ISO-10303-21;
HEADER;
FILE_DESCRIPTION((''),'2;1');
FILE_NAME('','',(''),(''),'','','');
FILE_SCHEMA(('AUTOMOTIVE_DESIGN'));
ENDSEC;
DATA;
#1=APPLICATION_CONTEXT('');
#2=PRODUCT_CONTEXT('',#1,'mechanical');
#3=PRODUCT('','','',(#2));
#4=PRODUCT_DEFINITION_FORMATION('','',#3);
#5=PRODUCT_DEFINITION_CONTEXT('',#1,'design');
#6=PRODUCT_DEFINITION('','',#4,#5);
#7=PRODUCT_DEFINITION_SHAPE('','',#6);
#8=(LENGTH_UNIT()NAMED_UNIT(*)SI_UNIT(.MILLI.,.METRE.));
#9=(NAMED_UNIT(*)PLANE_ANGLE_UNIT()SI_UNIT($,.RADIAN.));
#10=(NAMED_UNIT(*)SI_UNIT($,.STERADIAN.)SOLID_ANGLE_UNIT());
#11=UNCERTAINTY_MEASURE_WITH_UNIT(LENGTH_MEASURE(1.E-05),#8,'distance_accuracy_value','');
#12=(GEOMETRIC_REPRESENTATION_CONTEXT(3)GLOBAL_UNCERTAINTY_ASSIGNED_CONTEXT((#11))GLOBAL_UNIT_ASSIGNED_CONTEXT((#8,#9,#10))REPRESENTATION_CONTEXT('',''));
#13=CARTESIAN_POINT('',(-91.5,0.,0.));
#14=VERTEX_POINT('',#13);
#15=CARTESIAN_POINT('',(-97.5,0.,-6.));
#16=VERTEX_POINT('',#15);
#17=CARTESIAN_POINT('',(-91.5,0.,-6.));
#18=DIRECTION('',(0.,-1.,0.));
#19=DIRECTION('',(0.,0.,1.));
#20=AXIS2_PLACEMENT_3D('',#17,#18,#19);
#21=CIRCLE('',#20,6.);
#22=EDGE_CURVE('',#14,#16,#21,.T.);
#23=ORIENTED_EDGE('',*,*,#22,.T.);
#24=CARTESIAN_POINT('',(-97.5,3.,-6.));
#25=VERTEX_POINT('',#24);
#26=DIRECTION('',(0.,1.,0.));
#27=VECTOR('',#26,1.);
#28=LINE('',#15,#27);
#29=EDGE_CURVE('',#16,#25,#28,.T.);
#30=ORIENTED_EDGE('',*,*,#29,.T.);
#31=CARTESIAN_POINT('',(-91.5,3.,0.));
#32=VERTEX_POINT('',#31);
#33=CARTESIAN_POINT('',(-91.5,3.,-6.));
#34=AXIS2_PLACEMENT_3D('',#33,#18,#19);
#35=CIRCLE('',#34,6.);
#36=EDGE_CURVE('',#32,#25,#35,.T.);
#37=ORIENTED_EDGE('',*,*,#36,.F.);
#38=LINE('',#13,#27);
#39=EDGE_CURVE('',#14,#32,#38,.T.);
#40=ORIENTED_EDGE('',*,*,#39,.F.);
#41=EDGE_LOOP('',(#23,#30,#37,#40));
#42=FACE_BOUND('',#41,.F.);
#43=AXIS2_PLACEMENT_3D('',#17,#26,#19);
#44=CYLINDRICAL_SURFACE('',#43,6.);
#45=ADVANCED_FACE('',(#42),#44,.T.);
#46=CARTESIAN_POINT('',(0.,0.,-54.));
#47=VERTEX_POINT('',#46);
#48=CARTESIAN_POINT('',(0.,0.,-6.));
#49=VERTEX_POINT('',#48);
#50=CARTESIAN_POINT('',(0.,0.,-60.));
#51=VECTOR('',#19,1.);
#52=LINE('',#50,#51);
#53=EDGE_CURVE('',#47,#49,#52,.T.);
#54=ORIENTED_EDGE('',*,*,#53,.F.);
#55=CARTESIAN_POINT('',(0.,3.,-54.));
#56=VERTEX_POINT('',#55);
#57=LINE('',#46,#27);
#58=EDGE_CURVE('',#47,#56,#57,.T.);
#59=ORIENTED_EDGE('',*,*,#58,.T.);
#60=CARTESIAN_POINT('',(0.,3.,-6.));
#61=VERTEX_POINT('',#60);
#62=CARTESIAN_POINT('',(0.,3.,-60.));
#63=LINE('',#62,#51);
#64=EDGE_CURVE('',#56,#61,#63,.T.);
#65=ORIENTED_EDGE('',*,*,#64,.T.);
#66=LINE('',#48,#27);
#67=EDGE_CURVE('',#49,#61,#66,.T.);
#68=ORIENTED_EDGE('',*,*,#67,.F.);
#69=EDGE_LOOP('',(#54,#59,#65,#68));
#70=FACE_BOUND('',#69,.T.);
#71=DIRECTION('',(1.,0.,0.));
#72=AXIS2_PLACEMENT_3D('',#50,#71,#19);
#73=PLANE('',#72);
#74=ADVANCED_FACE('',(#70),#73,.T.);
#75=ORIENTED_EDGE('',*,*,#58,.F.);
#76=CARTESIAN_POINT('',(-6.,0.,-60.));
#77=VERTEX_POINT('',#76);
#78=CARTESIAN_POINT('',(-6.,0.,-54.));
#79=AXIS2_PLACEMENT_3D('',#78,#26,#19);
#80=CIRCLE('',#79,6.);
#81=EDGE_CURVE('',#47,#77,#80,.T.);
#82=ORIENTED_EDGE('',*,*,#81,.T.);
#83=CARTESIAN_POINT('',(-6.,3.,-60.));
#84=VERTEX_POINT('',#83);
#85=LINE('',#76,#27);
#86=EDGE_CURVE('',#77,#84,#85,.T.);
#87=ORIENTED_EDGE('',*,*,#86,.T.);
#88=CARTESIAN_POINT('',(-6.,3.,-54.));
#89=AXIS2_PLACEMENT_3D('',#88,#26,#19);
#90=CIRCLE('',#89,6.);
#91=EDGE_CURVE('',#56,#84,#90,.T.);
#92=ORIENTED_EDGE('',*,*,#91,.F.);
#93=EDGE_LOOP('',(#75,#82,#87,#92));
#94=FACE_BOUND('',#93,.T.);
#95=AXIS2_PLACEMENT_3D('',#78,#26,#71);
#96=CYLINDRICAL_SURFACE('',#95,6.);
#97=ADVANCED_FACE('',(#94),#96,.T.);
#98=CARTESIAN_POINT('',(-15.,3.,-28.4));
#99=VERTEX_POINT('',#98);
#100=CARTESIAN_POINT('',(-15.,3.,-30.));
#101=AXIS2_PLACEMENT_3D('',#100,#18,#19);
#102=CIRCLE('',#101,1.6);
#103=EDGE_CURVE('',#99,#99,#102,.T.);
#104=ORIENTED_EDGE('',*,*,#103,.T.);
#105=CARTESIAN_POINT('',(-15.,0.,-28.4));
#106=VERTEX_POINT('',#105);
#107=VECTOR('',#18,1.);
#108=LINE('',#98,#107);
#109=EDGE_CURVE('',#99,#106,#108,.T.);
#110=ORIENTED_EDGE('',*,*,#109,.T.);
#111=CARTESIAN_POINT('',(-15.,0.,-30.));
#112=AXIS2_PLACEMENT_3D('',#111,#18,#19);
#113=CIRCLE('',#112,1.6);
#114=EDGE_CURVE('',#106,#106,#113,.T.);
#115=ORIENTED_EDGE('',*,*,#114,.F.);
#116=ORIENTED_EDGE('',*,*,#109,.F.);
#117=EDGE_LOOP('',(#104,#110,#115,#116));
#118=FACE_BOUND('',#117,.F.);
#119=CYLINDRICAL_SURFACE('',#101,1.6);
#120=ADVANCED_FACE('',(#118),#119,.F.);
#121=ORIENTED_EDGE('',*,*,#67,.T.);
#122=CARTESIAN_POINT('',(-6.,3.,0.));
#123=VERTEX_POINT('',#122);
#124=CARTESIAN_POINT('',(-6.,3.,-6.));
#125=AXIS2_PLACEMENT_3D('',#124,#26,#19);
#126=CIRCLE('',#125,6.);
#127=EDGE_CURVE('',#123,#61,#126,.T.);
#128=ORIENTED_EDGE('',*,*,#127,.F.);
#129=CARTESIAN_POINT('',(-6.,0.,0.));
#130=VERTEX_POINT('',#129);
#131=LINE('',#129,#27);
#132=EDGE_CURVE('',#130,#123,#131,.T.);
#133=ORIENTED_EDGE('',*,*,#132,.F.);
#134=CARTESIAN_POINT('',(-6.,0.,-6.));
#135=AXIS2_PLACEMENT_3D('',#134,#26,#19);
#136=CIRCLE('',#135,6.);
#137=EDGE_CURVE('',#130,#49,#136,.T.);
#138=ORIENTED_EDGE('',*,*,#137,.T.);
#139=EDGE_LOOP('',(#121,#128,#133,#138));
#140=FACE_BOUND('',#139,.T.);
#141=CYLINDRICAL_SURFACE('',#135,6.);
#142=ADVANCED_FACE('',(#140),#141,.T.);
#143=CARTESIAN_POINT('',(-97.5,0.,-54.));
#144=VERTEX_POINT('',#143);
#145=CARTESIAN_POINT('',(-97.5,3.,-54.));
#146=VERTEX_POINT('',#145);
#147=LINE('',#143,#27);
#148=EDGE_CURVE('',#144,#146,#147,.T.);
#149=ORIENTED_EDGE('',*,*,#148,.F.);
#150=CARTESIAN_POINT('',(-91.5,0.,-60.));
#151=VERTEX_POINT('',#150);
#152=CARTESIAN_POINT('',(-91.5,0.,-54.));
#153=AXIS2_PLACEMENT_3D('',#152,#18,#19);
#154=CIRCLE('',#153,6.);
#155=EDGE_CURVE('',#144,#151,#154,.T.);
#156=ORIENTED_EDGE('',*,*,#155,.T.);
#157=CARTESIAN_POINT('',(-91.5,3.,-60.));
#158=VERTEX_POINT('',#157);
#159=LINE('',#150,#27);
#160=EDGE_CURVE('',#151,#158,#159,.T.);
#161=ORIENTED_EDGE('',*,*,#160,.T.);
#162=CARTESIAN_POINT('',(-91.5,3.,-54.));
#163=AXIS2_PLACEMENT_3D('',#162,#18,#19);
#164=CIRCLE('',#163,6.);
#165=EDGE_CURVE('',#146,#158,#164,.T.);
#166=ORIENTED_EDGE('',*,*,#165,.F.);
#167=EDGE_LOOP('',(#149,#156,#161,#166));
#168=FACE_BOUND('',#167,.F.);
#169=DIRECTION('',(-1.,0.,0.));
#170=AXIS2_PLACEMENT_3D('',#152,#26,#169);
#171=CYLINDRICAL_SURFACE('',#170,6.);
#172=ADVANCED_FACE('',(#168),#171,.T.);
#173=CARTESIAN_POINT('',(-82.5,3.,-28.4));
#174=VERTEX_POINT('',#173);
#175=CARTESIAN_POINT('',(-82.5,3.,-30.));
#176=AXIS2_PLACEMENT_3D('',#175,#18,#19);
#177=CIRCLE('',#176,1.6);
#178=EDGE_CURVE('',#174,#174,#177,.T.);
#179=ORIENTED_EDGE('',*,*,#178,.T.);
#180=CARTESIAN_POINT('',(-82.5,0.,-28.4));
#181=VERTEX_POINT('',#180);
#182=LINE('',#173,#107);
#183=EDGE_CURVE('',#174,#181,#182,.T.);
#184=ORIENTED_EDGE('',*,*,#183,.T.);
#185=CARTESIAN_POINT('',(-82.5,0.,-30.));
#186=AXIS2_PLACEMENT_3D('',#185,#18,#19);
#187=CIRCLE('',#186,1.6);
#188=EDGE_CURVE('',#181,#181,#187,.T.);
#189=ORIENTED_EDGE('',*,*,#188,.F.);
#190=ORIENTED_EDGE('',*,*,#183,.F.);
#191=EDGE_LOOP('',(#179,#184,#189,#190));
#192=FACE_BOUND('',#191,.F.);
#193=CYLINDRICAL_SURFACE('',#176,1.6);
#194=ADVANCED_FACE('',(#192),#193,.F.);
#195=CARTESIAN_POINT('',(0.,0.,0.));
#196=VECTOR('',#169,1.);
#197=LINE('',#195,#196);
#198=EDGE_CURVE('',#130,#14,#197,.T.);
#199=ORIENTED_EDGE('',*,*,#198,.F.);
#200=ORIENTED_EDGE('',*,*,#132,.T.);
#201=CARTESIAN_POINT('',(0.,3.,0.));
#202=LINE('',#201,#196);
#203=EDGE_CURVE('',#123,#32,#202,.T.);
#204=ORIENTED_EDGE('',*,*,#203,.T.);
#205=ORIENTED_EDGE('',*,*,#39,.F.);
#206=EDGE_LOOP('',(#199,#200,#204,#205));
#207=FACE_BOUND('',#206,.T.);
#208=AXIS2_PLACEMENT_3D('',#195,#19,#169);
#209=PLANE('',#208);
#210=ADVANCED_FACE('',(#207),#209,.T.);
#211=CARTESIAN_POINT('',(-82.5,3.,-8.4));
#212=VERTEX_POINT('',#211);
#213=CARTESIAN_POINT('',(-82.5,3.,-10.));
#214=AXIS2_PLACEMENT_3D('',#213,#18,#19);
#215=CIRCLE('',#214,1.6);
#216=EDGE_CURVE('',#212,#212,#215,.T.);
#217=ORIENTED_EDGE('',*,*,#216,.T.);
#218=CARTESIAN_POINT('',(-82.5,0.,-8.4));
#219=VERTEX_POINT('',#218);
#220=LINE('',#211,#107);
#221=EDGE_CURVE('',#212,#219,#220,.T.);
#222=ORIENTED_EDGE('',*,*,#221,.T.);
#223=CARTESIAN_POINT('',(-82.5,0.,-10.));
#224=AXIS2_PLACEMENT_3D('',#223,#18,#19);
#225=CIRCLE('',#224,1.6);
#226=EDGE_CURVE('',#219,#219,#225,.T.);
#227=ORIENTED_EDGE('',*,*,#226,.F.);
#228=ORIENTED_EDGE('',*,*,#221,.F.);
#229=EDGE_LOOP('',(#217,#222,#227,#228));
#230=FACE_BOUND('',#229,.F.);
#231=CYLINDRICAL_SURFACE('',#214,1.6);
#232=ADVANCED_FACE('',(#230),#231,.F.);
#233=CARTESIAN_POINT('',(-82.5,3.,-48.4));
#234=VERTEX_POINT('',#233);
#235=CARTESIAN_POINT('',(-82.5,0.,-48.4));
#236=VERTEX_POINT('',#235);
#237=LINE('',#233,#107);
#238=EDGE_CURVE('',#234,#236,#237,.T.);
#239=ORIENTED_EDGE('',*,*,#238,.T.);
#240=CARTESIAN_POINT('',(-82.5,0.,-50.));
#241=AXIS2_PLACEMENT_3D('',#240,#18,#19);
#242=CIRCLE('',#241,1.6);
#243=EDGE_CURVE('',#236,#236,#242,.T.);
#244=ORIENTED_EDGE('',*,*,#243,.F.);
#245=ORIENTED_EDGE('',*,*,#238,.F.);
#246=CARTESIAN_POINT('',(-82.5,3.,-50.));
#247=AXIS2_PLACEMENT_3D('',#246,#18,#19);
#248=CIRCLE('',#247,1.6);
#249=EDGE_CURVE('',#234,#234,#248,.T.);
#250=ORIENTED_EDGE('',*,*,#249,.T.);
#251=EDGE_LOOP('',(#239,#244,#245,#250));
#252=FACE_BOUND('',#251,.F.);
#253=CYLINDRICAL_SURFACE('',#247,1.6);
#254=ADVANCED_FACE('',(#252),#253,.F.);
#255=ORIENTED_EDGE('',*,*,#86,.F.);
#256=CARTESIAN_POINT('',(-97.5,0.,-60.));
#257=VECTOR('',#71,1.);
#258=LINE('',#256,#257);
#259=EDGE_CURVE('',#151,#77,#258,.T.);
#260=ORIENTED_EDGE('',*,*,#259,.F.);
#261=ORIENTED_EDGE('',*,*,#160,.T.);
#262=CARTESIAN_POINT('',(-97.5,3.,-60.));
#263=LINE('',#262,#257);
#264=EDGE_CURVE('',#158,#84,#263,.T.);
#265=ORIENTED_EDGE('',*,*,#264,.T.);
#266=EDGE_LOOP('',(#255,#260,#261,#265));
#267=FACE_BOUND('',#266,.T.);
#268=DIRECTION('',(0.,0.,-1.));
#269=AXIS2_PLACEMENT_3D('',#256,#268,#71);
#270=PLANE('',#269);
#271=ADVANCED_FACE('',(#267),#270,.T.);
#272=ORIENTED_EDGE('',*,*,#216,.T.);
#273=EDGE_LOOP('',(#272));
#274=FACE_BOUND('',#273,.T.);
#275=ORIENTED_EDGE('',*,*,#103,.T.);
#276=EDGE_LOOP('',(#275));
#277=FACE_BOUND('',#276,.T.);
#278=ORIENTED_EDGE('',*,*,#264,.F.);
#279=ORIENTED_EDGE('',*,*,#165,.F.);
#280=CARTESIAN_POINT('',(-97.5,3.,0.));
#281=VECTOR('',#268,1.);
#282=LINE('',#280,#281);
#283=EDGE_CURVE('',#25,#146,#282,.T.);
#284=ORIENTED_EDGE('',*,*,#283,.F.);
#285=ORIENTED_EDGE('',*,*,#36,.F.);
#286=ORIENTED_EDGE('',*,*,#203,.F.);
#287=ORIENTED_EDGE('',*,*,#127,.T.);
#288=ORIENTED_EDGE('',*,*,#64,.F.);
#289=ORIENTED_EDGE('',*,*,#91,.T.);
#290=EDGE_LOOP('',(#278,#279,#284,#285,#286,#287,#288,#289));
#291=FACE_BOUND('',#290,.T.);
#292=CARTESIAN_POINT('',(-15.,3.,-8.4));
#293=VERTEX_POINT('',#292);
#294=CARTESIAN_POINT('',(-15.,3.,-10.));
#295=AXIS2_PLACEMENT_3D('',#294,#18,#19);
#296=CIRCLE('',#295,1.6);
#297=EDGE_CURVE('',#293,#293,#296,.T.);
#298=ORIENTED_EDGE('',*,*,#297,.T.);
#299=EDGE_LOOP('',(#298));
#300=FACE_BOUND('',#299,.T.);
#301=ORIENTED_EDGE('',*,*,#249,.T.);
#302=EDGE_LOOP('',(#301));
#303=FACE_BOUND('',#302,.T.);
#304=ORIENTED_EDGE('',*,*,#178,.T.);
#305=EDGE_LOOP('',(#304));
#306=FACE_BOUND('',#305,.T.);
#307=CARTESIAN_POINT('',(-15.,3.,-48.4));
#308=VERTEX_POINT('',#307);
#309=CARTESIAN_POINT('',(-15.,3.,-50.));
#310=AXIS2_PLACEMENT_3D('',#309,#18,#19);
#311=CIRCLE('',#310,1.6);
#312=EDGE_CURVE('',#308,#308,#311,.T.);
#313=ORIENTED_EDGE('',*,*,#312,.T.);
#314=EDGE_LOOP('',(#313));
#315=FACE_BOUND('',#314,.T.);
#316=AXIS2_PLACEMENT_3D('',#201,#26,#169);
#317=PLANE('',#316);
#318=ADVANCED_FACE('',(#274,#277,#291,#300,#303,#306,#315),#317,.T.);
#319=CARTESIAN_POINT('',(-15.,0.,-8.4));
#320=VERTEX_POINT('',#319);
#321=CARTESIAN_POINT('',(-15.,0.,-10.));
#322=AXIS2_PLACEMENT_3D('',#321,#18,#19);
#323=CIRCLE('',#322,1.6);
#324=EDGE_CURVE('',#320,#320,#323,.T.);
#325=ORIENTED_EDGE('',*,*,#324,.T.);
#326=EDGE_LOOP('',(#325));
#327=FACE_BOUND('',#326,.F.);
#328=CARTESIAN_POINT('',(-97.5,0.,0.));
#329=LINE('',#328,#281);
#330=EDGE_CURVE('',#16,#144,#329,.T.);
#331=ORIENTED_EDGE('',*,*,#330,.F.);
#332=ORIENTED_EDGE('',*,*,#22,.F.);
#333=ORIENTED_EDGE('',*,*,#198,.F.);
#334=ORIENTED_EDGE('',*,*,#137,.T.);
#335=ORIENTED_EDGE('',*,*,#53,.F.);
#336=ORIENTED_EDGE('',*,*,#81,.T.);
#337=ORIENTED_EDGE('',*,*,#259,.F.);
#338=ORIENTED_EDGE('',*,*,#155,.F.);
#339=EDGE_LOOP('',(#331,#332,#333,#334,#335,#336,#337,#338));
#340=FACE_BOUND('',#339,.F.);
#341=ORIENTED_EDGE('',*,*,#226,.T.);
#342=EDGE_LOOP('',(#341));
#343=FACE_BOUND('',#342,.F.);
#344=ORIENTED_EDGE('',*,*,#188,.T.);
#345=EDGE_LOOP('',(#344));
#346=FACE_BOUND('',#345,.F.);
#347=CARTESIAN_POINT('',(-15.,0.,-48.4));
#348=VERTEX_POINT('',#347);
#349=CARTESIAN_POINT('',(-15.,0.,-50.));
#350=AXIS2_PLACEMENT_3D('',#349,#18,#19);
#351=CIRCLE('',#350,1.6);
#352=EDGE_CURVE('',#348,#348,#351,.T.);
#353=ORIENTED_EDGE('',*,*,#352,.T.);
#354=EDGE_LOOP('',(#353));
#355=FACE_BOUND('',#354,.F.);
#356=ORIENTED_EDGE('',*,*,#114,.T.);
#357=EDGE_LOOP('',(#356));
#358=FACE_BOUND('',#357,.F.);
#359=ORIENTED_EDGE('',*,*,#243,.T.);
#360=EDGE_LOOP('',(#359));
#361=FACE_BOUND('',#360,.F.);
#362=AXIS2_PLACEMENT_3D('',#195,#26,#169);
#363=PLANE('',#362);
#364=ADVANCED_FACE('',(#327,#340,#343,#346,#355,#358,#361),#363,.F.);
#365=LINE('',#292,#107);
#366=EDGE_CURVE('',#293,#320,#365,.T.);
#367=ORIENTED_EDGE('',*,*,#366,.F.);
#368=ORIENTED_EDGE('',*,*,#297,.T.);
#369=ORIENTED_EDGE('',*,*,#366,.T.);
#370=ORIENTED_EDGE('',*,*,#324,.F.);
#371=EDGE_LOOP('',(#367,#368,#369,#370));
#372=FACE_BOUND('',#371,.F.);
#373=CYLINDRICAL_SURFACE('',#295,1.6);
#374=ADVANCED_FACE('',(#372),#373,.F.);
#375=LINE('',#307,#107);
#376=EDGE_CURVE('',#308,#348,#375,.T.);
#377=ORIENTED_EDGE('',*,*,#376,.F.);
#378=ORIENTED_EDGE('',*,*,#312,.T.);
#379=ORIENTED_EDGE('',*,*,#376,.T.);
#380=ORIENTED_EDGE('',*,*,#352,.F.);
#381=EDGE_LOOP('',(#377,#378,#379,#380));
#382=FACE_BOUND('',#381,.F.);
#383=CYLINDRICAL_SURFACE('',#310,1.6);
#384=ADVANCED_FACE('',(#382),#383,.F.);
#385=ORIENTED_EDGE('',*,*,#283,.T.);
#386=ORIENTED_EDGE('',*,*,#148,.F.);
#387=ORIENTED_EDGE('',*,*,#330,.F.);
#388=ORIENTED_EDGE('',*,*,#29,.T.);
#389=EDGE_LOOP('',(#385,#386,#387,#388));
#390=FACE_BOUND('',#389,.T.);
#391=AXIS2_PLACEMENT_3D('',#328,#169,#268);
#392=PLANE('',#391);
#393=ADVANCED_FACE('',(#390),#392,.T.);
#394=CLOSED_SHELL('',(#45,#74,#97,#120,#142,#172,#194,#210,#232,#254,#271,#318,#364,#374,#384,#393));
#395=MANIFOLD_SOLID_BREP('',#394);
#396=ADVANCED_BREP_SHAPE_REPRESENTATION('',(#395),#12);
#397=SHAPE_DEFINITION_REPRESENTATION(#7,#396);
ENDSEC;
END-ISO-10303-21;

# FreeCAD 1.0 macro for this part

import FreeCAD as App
import Part
import Sketcher
from FreeCAD import Vector
Q = App.Units.Quantity


def edges_at(feature, points):
    """Names of the edges that pass closest to the given points."""
    edges = feature.Shape.Edges
    near = lambda p: min(range(len(edges)), key=lambda i: edges[i].distToShape(Part.Vertex(*p))[0])
    return sorted({f"Edge{near(p) + 1}" for p in points})


def add_polygon(sketch, points):
    """Adds a closed chain of lines whose ends are joined by coincident constraints."""
    first, n = sketch.GeometryCount, len(points)
    for a, b in zip(points, points[1:] + points[:1]):
        sketch.addGeometry(Part.LineSegment(App.Vector(*a, 0), App.Vector(*b, 0)), False)
    for i in range(n):
        sketch.addConstraint(Sketcher.Constraint("Coincident", first + i, 2, first + (i + 1) % n, 1))

doc = App.newDocument("Part")
body = doc.addObject("PartDesign::Body", "Body")

sketch1 = body.newObject("Sketcher::SketchObject", "Sketch")
sketch1.AttachmentSupport = (doc.getObject("XZ_Plane"), [""])
sketch1.MapMode = "FlatFace"
add_polygon(sketch1, [(-98, 0), (0, 0), (0, -60), (-98, -60)])
sketch1.addConstraint(Sketcher.Constraint("Horizontal", 0))
sketch1.addConstraint(Sketcher.Constraint("Vertical", 1))
sketch1.addConstraint(Sketcher.Constraint("Horizontal", 2))
sketch1.addConstraint(Sketcher.Constraint("Vertical", 3))
sketch1.addConstraint(Sketcher.Constraint("Coincident", 0, 2, -1, 1))
sketch1.addConstraint(Sketcher.Constraint("DistanceY", 1, 2, 1, 1, Q("60 mm")))
sketch1.addConstraint(Sketcher.Constraint("DistanceX", 0, 1, 0, 2, Q("97.5 mm")))
pad1 = body.newObject("PartDesign::Pad", "Pad")
pad1.Profile = sketch1
pad1.Length = 3
pad1.Reversed = True

sketch2 = body.newObject("Sketcher::SketchObject", "Sketch001")
sketch2.AttachmentSupport = (doc.getObject("XZ_Plane"), [""])
sketch2.MapMode = "FlatFace"
sketch2.AttachmentOffset = App.Placement(Vector(0, 0, -3), App.Rotation())
sketch2.addGeometry(Part.Circle(Vector(-15, -30, 0), Vector(0, 0, 1), 1.6), False)
sketch2.addGeometry(Part.Circle(Vector(-15, -10, 0), Vector(0, 0, 1), 1.6), False)
sketch2.addGeometry(Part.Circle(Vector(-15, -50, 0), Vector(0, 0, 1), 1.6), False)
sketch2.addGeometry(Part.Circle(Vector(-82.5, -30, 0), Vector(0, 0, 1), 1.6), False)
sketch2.addGeometry(Part.Circle(Vector(-82.5, -10, 0), Vector(0, 0, 1), 1.6), False)
sketch2.addGeometry(Part.Circle(Vector(-82.5, -50, 0), Vector(0, 0, 1), 1.6), False)
sketch2.addConstraint(Sketcher.Constraint("Equal", 0, 1))
sketch2.addConstraint(Sketcher.Constraint("Equal", 1, 2))
sketch2.addConstraint(Sketcher.Constraint("Equal", 2, 3))
sketch2.addConstraint(Sketcher.Constraint("Equal", 3, 4))
sketch2.addConstraint(Sketcher.Constraint("Equal", 4, 5))
sketch2.addConstraint(Sketcher.Constraint("Horizontal", 0, 3, 3, 3))
sketch2.addConstraint(Sketcher.Constraint("Horizontal", 1, 3, 4, 3))
sketch2.addConstraint(Sketcher.Constraint("Horizontal", 2, 3, 5, 3))
sketch2.addConstraint(Sketcher.Constraint("Vertical", 0, 3, 1, 3))
sketch2.addConstraint(Sketcher.Constraint("Vertical", 1, 3, 2, 3))
sketch2.addConstraint(Sketcher.Constraint("Vertical", 3, 3, 4, 3))
sketch2.addConstraint(Sketcher.Constraint("Vertical", 4, 3, 5, 3))
sketch2.addConstraint(Sketcher.Constraint("Diameter", 0, Q("3.2 mm")))
sketch2.addConstraint(Sketcher.Constraint("DistanceX", 0, 3, -1, 1, Q("15 mm")))
sketch2.addConstraint(Sketcher.Constraint("DistanceY", 0, 3, -1, 1, Q("30 mm")))
sketch2.addConstraint(Sketcher.Constraint("DistanceY", 1, 3, -1, 1, Q("10 mm")))
sketch2.addConstraint(Sketcher.Constraint("DistanceY", 2, 3, -1, 1, Q("50 mm")))
sketch2.addConstraint(Sketcher.Constraint("DistanceX", 3, 3, -1, 1, Q("82.5 mm")))
doc.recompute()
hole = body.newObject("PartDesign::Hole", "Hole")
hole.Profile = sketch2
hole.ThreadType = "None"
hole.Diameter = 3.2
hole.DepthType = "ThroughAll"
hole.Reversed = True
doc.recompute()

fillet = body.newObject("PartDesign::Fillet", "Fillet")
fillet.Base = (hole, edges_at(hole, [
    (-97.5, 1.5, 0),
    (0, 1.5, 0),
    (-97.5, 1.5, -60),
    (0, 1.5, -60),
]))
fillet.Radius = 6

doc.recompute()
